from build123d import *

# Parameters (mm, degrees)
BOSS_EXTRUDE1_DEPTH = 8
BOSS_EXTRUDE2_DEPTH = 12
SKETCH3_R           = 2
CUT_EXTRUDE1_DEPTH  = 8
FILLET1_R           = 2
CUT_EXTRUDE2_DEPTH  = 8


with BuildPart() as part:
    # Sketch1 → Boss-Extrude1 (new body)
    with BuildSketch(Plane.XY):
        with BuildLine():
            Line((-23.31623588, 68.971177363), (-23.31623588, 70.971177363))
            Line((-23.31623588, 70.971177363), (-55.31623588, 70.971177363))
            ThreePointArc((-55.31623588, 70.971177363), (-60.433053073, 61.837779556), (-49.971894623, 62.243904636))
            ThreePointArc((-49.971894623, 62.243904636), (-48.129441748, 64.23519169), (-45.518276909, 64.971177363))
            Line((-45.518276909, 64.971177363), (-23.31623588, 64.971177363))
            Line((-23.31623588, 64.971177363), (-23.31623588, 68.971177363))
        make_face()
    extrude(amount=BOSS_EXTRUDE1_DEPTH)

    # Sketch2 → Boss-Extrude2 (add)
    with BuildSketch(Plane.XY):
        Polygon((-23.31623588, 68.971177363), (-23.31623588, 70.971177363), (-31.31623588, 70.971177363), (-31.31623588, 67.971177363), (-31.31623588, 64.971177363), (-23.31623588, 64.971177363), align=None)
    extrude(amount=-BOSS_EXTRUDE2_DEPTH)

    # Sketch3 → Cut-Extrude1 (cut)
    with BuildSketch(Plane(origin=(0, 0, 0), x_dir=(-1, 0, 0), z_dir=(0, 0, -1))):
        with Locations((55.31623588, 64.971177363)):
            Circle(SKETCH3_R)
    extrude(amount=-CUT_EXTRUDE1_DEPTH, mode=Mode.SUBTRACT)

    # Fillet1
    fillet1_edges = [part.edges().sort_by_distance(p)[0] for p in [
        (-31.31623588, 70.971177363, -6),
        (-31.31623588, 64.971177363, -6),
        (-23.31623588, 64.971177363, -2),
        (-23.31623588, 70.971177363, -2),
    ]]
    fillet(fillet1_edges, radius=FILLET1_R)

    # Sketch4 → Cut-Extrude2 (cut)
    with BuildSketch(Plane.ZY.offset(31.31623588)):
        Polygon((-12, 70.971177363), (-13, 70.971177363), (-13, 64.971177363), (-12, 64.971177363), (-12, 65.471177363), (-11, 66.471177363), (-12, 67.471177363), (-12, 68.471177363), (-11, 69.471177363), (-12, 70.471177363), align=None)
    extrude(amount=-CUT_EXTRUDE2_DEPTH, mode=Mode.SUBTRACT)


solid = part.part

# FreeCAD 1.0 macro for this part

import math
import FreeCAD as App
import Part
import Sketcher


def edges_at(feature, points):
    """Names of the edges that pass closest to the given points."""
    edges = feature.Shape.Edges
    near = lambda p: min(range(len(edges)), key=lambda i: edges[i].distToShape(Part.Vertex(*p))[0])
    return sorted({f"Edge{near(p) + 1}" for p in points})

doc = App.newDocument("Part")
body = doc.addObject("PartDesign::Body", "Body")

# Sketch on XY plane
sketch1 = body.newObject("Sketcher::SketchObject", "Sketch")
sketch1.AttachmentSupport = (doc.getObject("XY_Plane"), [""])
sketch1.MapMode = "FlatFace"
sketch1.addGeometry([
    Part.LineSegment(App.Vector(-23, 71, 0), App.Vector(-55, 71, 0)),  # 0
    Part.ArcOfCircle(Part.Circle(App.Vector(-55, 65, 0), App.Vector(0, 0, 1), 6), math.radians(90), math.radians(333)),  # 1
    Part.ArcOfCircle(Part.Circle(App.Vector(-46, 60, 0), App.Vector(0, 0, 1), 5), math.radians(90), math.radians(153)),  # 2
    Part.LineSegment(App.Vector(-46, 65, 0), App.Vector(-23, 65, 0)),  # 3
    Part.LineSegment(App.Vector(-23, 65, 0), App.Vector(-23, 71, 0)),  # 4
], False)
sketch1.addConstraint([
    Sketcher.Constraint("Tangent", 0, 2, 1, 1),
    Sketcher.Constraint("Tangent", 1, 2, 2, 2),
    Sketcher.Constraint("Tangent", 2, 1, 3, 1),
    Sketcher.Constraint("Coincident", 3, 2, 4, 1),
    Sketcher.Constraint("Coincident", 4, 2, 0, 1),
    Sketcher.Constraint("Horizontal", 0),
    Sketcher.Constraint("Horizontal", 3),
    Sketcher.Constraint("Vertical", 4),
    Sketcher.Constraint("Horizontal", 1, 3, 2, 1),
    Sketcher.Constraint("Radius", 1, 6.0),
    Sketcher.Constraint("Radius", 2, 5.0),
    Sketcher.Constraint("DistanceX", 0, 2, 0, 1, 32.0),
    Sketcher.Constraint("DistanceX", 1, 3, -1, 1, 55.316236),
    Sketcher.Constraint("DistanceY", -1, 1, 1, 3, 64.971177),
])
pad1 = body.newObject("PartDesign::Pad", "Pad")
pad1.Profile = sketch1
pad1.Length = 8

# Sketch on XY plane
sketch2 = body.newObject("Sketcher::SketchObject", "Sketch001")
sketch2.AttachmentSupport = (doc.getObject("XY_Plane"), [""])
sketch2.MapMode = "FlatFace"
sketch2.addGeometry([
    Part.LineSegment(App.Vector(-23, 71, 0), App.Vector(-31, 71, 0)),
    Part.LineSegment(App.Vector(-31, 71, 0), App.Vector(-31, 65, 0)),
    Part.LineSegment(App.Vector(-31, 65, 0), App.Vector(-23, 65, 0)),
    Part.LineSegment(App.Vector(-23, 65, 0), App.Vector(-23, 71, 0)),
], False)
sketch2.addConstraint([
    Sketcher.Constraint("Coincident", 0, 2, 1, 1),
    Sketcher.Constraint("Coincident", 1, 2, 2, 1),
    Sketcher.Constraint("Coincident", 2, 2, 3, 1),
    Sketcher.Constraint("Coincident", 3, 2, 0, 1),
    Sketcher.Constraint("Horizontal", 0),
    Sketcher.Constraint("Vertical", 1),
    Sketcher.Constraint("Horizontal", 2),
    Sketcher.Constraint("Vertical", 3),
    Sketcher.Constraint("DistanceX", 0, 2, 0, 1, 8.0),
    Sketcher.Constraint("DistanceY", 1, 2, 1, 1, 6.0),
    Sketcher.Constraint("DistanceX", 0, 2, -1, 1, 31.316236),
    Sketcher.Constraint("DistanceY", -1, 1, 0, 2, 70.971177),
])
pad2 = body.newObject("PartDesign::Pad", "Pad001")
pad2.Profile = sketch2
pad2.Length = 12
pad2.Reversed = True

# Sketch on XY plane
sketch3 = body.newObject("Sketcher::SketchObject", "Sketch002")
sketch3.AttachmentSupport = (doc.getObject("XY_Plane"), [""])
sketch3.MapMode = "FlatFace"
sketch3.addGeometry(Part.Circle(App.Vector(-55.3, 65, 0), App.Vector(0, 0, 1), 2), False)
sketch3.addConstraint([
    Sketcher.Constraint("Diameter", 0, 4.0),
    Sketcher.Constraint("DistanceX", 0, 3, -1, 1, 55.316236),
    Sketcher.Constraint("DistanceY", -1, 1, 0, 3, 64.971177),
])
pocket1 = body.newObject("PartDesign::Pocket", "Pocket")
pocket1.Profile = sketch3
pocket1.Length = 8
pocket1.Reversed = True
doc.recompute()

fillet = body.newObject("PartDesign::Fillet", "Fillet")
fillet.Base = (pocket1, edges_at(pocket1, [
    (-31.316, 70.971, -6),
    (-31.316, 64.971, -6),
    (-23.316, 64.971, -2),
    (-23.316, 70.971, -2),
]))
fillet.Radius = 2

# Sketch on YZ plane
sketch4 = body.newObject("Sketcher::SketchObject", "Sketch003")
sketch4.AttachmentSupport = (doc.getObject("YZ_Plane"), [""])
sketch4.MapMode = "FlatFace"
sketch4.AttachmentOffset = App.Placement(App.Vector(0, 0, -31.316236), App.Rotation())
sketch4.addGeometry([
    Part.LineSegment(App.Vector(71, -12, 0), App.Vector(71, -13, 0)),  # 0
    Part.LineSegment(App.Vector(71, -13, 0), App.Vector(65, -13, 0)),  # 1
    Part.LineSegment(App.Vector(65, -13, 0), App.Vector(65, -12, 0)),  # 2
    Part.LineSegment(App.Vector(65, -12, 0), App.Vector(65.5, -12, 0)),  # 3
    Part.LineSegment(App.Vector(65.5, -12, 0), App.Vector(66.5, -11, 0)),  # 4
    Part.LineSegment(App.Vector(66.5, -11, 0), App.Vector(67.5, -12, 0)),  # 5
    Part.LineSegment(App.Vector(67.5, -12, 0), App.Vector(68.5, -12, 0)),  # 6
    Part.LineSegment(App.Vector(68.5, -12, 0), App.Vector(69.5, -11, 0)),  # 7
    Part.LineSegment(App.Vector(69.5, -11, 0), App.Vector(70.5, -12, 0)),  # 8
    Part.LineSegment(App.Vector(70.5, -12, 0), App.Vector(71, -12, 0)),  # 9
], False)
sketch4.addConstraint([
    Sketcher.Constraint("Coincident", 0, 2, 1, 1),
    Sketcher.Constraint("Coincident", 1, 2, 2, 1),
    Sketcher.Constraint("Coincident", 2, 2, 3, 1),
    Sketcher.Constraint("Coincident", 3, 2, 4, 1),
    Sketcher.Constraint("Coincident", 4, 2, 5, 1),
    Sketcher.Constraint("Coincident", 5, 2, 6, 1),
    Sketcher.Constraint("Coincident", 6, 2, 7, 1),
    Sketcher.Constraint("Coincident", 7, 2, 8, 1),
    Sketcher.Constraint("Coincident", 8, 2, 9, 1),
    Sketcher.Constraint("Coincident", 9, 2, 0, 1),
    Sketcher.Constraint("Vertical", 0),
    Sketcher.Constraint("Horizontal", 1),
    Sketcher.Constraint("Vertical", 2),
    Sketcher.Constraint("Horizontal", 3),
    Sketcher.Constraint("Horizontal", 6),
    Sketcher.Constraint("Horizontal", 9),
    Sketcher.Constraint("Perpendicular", 4, 5),
    Sketcher.Constraint("Perpendicular", 5, 7),
    Sketcher.Constraint("Perpendicular", 7, 8),
    Sketcher.Constraint("Horizontal", 3, 2, 5, 2),
    Sketcher.Constraint("Horizontal", 4, 2, 7, 2),
    Sketcher.Constraint("Horizontal", 6, 2, 8, 2),
    Sketcher.Constraint("Equal", 3, 9),
    Sketcher.Constraint("Equal", 6, 0),
    Sketcher.Constraint("Equal", 4, 5),
    Sketcher.Constraint("DistanceX", 1, 2, 1, 1, 6.0),
    Sketcher.Constraint("DistanceX", 6, 1, 6, 2, 1.0),
    Sketcher.Constraint("DistanceX", 3, 1, 3, 2, 0.5),
    Sketcher.Constraint("DistanceY", 0, 2, -1, 1, 13.0),
    Sketcher.Constraint("DistanceX", -1, 1, 0, 2, 70.971177),
])
pocket2 = body.newObject("PartDesign::Pocket", "Pocket001")
pocket2.Profile = sketch4
pocket2.Length = 8
pocket2.Reversed = True

doc.recompute()
